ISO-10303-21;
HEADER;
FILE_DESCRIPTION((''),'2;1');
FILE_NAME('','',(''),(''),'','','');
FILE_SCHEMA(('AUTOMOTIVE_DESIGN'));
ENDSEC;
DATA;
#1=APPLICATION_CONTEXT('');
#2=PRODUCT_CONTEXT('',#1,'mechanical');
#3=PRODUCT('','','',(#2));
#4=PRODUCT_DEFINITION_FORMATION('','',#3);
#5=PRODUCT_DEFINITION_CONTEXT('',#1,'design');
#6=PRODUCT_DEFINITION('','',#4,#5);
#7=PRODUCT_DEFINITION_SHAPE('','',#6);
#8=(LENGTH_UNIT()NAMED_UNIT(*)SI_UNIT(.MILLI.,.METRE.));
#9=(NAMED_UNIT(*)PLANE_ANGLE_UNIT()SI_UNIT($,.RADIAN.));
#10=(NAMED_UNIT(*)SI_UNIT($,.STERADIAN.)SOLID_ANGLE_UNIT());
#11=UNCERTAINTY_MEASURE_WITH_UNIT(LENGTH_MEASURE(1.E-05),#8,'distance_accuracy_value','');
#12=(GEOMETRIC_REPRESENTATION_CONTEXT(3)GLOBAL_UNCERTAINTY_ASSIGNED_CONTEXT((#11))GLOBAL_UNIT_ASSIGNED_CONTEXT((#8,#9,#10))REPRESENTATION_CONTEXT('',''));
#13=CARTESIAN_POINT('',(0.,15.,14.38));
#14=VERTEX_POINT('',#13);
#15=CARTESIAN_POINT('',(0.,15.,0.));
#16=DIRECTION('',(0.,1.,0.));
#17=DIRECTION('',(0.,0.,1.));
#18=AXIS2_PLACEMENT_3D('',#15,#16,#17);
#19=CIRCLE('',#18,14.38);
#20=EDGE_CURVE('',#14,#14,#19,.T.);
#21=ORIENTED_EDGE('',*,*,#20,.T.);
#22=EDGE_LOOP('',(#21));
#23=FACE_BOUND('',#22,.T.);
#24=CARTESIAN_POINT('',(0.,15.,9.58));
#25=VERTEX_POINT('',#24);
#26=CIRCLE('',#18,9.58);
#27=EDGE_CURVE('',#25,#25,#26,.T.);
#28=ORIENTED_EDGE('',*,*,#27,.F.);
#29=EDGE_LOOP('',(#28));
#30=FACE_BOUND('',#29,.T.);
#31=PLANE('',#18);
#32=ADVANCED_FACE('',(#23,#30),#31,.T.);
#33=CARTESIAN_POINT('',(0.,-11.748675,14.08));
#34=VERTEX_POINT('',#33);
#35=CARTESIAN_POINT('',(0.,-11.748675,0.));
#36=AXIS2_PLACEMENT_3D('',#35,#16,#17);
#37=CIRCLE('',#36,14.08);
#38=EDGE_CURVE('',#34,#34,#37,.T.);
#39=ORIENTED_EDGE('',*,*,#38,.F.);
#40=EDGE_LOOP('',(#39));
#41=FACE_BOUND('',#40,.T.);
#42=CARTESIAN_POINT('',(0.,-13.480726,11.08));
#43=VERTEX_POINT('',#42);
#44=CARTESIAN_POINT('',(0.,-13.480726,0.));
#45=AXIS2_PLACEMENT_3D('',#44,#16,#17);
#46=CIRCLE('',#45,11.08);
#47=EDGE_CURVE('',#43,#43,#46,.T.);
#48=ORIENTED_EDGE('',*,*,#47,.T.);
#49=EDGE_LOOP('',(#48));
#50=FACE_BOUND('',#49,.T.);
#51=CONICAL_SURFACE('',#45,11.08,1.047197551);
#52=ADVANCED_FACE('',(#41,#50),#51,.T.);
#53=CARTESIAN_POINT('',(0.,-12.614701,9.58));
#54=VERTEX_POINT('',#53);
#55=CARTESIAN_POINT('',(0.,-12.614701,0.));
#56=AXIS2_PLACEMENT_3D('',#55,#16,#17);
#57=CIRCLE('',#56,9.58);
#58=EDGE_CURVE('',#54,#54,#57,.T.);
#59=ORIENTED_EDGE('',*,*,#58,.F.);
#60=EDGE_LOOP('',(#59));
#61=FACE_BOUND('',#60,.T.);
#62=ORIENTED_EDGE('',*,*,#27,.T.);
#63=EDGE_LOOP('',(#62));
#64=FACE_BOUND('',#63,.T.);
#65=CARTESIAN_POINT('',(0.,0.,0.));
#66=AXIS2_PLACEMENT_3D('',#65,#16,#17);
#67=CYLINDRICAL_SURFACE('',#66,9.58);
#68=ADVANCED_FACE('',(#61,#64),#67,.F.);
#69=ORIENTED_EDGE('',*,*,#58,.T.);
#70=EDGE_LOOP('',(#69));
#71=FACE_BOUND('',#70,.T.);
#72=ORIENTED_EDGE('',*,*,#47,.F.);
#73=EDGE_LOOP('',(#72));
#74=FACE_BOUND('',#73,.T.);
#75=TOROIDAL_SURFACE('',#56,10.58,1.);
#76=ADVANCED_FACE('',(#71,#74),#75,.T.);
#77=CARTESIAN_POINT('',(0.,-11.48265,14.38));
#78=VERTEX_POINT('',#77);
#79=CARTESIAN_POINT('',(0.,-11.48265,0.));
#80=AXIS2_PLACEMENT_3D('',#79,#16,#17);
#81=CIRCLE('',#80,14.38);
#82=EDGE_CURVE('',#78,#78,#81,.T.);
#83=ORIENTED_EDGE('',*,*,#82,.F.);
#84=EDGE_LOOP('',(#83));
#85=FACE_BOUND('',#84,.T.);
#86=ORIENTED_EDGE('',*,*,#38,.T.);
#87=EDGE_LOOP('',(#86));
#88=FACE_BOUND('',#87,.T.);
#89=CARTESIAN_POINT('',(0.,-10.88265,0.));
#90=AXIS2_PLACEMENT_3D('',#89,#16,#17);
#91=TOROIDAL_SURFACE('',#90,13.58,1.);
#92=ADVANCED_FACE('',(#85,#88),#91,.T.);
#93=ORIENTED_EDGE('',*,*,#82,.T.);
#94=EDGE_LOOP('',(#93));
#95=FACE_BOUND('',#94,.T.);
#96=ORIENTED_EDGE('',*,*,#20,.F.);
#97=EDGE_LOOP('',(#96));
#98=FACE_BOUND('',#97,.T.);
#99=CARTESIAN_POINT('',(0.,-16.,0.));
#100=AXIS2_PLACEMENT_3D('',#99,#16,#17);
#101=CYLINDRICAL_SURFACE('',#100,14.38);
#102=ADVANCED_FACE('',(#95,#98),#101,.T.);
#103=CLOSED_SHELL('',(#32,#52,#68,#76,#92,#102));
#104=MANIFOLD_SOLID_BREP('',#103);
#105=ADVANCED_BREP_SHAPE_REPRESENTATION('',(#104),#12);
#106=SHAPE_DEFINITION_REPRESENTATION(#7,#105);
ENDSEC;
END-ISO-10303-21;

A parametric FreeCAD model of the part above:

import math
import FreeCAD as App
import Part
import Sketcher

V = App.Vector
Q = App.Units.Quantity

doc = App.newDocument("Part")
body = doc.addObject("PartDesign::Body", "Body")

# Sketch on XY plane
sketch1 = body.newObject("Sketcher::SketchObject", "Sketch")
sketch1.AttachmentSupport = (doc.getObject("XY_Plane"), [""])
sketch1.MapMode = "FlatFace"
sketch1.addGeometry([
    Part.LineSegment(V(14.58, 0, 0), V(9.58, 0, 0)),  # 0
    Part.LineSegment(V(9.58, 0, 0), V(9.58, -12.614701, 0)),  # 1
    Part.ArcOfCircle(Part.Circle(V(10.58, -12.614701, 0), V(0, 0, 1), 1), math.radians(180), math.radians(300)),  # 2
    Part.LineSegment(V(11.08, -13.480726, 0), V(14.08, -11.748675, 0)),  # 3
    Part.ArcOfCircle(Part.Circle(V(13.58, -10.88265, 0), V(0, 0, 1), 1), math.radians(-60), math.radians(0)),  # 4
    Part.LineSegment(V(14.58, -10.88265, 0), V(14.58, 0, 0)),  # 5
], False)
sketch1.addConstraint([
    Sketcher.Constraint("Coincident", 0, 2, 1, 1),
    Sketcher.Constraint("Tangent", 1, 2, 2, 1),
    Sketcher.Constraint("Tangent", 2, 2, 3, 1),
    Sketcher.Constraint("Tangent", 3, 2, 4, 1),
    Sketcher.Constraint("Tangent", 4, 2, 5, 1),
    Sketcher.Constraint("Coincident", 5, 2, 0, 1),
    Sketcher.Constraint("Horizontal", 0),
    Sketcher.Constraint("Vertical", 1),
    Sketcher.Constraint("Vertical", 5),
    Sketcher.Constraint("Equal", 2, 4),
    Sketcher.Constraint("PointOnObject", 0, 2, -1),
    Sketcher.Constraint("Radius", 2, Q("1 mm")),
    Sketcher.Constraint("DistanceX", 0, 2, 0, 1, Q("5 mm")),
    Sketcher.Constraint("Angle", 3, Q("30 deg")),
    Sketcher.Constraint("DistanceX", -1, 1, 2, 3, Q("10.58 mm")),
    Sketcher.Constraint("DistanceY", 1, 2, 1, 1, Q("12.614701 mm")),
])
revolution = body.newObject("PartDesign::Revolution", "Revolution")
revolution.Profile = sketch1
revolution.ReferenceAxis = (sketch1, ["V_Axis"])
revolution.Angle = 360

# Sketch on XZ plane
sketch2 = body.newObject("Sketcher::SketchObject", "Sketch001")
sketch2.AttachmentSupport = (doc.getObject("XZ_Plane"), [""])
sketch2.MapMode = "FlatFace"
sketch2.addGeometry([
    Part.Circle(V(0, 0, 0), V(0, 0, 1), 14.58),
    Part.Circle(V(0, 0, 0), V(0, 0, 1), 9.58),
], False)
sketch2.addConstraint([
    Sketcher.Constraint("Coincident", 0, 3, -1, 1),
    Sketcher.Constraint("Coincident", 1, 3, -1, 1),
    Sketcher.Constraint("Diameter", 0, Q("29.16 mm")),
    Sketcher.Constraint("Diameter", 1, Q("19.16 mm")),
])
pad1 = body.newObject("PartDesign::Pad", "Pad")
pad1.Profile = sketch2
pad1.Length = 15
pad1.Reversed = True

# Sketch on XZ plane
sketch3 = body.newObject("Sketcher::SketchObject", "Sketch002")
sketch3.AttachmentSupport = (doc.getObject("XZ_Plane"), [""])
sketch3.MapMode = "FlatFace"
sketch3.AttachmentOffset = App.Placement(V(0, 0, -15), App.Rotation())
sketch3.addGeometry([
    Part.Circle(V(0, 0, 0), V(0, 0, 1), 14.58),
    Part.Circle(V(0, 0, 0), V(0, 0, 1), 14.38),
], False)
sketch3.addConstraint([
    Sketcher.Constraint("Coincident", 0, 3, -1, 1),
    Sketcher.Constraint("Coincident", 1, 3, -1, 1),
    Sketcher.Constraint("Diameter", 0, Q("29.16 mm")),
    Sketcher.Constraint("Diameter", 1, Q("28.76 mm")),
])
pocket1 = body.newObject("PartDesign::Pocket", "Pocket")
pocket1.Profile = sketch3
pocket1.Length = 31
pocket1.Reversed = True

doc.recompute()
